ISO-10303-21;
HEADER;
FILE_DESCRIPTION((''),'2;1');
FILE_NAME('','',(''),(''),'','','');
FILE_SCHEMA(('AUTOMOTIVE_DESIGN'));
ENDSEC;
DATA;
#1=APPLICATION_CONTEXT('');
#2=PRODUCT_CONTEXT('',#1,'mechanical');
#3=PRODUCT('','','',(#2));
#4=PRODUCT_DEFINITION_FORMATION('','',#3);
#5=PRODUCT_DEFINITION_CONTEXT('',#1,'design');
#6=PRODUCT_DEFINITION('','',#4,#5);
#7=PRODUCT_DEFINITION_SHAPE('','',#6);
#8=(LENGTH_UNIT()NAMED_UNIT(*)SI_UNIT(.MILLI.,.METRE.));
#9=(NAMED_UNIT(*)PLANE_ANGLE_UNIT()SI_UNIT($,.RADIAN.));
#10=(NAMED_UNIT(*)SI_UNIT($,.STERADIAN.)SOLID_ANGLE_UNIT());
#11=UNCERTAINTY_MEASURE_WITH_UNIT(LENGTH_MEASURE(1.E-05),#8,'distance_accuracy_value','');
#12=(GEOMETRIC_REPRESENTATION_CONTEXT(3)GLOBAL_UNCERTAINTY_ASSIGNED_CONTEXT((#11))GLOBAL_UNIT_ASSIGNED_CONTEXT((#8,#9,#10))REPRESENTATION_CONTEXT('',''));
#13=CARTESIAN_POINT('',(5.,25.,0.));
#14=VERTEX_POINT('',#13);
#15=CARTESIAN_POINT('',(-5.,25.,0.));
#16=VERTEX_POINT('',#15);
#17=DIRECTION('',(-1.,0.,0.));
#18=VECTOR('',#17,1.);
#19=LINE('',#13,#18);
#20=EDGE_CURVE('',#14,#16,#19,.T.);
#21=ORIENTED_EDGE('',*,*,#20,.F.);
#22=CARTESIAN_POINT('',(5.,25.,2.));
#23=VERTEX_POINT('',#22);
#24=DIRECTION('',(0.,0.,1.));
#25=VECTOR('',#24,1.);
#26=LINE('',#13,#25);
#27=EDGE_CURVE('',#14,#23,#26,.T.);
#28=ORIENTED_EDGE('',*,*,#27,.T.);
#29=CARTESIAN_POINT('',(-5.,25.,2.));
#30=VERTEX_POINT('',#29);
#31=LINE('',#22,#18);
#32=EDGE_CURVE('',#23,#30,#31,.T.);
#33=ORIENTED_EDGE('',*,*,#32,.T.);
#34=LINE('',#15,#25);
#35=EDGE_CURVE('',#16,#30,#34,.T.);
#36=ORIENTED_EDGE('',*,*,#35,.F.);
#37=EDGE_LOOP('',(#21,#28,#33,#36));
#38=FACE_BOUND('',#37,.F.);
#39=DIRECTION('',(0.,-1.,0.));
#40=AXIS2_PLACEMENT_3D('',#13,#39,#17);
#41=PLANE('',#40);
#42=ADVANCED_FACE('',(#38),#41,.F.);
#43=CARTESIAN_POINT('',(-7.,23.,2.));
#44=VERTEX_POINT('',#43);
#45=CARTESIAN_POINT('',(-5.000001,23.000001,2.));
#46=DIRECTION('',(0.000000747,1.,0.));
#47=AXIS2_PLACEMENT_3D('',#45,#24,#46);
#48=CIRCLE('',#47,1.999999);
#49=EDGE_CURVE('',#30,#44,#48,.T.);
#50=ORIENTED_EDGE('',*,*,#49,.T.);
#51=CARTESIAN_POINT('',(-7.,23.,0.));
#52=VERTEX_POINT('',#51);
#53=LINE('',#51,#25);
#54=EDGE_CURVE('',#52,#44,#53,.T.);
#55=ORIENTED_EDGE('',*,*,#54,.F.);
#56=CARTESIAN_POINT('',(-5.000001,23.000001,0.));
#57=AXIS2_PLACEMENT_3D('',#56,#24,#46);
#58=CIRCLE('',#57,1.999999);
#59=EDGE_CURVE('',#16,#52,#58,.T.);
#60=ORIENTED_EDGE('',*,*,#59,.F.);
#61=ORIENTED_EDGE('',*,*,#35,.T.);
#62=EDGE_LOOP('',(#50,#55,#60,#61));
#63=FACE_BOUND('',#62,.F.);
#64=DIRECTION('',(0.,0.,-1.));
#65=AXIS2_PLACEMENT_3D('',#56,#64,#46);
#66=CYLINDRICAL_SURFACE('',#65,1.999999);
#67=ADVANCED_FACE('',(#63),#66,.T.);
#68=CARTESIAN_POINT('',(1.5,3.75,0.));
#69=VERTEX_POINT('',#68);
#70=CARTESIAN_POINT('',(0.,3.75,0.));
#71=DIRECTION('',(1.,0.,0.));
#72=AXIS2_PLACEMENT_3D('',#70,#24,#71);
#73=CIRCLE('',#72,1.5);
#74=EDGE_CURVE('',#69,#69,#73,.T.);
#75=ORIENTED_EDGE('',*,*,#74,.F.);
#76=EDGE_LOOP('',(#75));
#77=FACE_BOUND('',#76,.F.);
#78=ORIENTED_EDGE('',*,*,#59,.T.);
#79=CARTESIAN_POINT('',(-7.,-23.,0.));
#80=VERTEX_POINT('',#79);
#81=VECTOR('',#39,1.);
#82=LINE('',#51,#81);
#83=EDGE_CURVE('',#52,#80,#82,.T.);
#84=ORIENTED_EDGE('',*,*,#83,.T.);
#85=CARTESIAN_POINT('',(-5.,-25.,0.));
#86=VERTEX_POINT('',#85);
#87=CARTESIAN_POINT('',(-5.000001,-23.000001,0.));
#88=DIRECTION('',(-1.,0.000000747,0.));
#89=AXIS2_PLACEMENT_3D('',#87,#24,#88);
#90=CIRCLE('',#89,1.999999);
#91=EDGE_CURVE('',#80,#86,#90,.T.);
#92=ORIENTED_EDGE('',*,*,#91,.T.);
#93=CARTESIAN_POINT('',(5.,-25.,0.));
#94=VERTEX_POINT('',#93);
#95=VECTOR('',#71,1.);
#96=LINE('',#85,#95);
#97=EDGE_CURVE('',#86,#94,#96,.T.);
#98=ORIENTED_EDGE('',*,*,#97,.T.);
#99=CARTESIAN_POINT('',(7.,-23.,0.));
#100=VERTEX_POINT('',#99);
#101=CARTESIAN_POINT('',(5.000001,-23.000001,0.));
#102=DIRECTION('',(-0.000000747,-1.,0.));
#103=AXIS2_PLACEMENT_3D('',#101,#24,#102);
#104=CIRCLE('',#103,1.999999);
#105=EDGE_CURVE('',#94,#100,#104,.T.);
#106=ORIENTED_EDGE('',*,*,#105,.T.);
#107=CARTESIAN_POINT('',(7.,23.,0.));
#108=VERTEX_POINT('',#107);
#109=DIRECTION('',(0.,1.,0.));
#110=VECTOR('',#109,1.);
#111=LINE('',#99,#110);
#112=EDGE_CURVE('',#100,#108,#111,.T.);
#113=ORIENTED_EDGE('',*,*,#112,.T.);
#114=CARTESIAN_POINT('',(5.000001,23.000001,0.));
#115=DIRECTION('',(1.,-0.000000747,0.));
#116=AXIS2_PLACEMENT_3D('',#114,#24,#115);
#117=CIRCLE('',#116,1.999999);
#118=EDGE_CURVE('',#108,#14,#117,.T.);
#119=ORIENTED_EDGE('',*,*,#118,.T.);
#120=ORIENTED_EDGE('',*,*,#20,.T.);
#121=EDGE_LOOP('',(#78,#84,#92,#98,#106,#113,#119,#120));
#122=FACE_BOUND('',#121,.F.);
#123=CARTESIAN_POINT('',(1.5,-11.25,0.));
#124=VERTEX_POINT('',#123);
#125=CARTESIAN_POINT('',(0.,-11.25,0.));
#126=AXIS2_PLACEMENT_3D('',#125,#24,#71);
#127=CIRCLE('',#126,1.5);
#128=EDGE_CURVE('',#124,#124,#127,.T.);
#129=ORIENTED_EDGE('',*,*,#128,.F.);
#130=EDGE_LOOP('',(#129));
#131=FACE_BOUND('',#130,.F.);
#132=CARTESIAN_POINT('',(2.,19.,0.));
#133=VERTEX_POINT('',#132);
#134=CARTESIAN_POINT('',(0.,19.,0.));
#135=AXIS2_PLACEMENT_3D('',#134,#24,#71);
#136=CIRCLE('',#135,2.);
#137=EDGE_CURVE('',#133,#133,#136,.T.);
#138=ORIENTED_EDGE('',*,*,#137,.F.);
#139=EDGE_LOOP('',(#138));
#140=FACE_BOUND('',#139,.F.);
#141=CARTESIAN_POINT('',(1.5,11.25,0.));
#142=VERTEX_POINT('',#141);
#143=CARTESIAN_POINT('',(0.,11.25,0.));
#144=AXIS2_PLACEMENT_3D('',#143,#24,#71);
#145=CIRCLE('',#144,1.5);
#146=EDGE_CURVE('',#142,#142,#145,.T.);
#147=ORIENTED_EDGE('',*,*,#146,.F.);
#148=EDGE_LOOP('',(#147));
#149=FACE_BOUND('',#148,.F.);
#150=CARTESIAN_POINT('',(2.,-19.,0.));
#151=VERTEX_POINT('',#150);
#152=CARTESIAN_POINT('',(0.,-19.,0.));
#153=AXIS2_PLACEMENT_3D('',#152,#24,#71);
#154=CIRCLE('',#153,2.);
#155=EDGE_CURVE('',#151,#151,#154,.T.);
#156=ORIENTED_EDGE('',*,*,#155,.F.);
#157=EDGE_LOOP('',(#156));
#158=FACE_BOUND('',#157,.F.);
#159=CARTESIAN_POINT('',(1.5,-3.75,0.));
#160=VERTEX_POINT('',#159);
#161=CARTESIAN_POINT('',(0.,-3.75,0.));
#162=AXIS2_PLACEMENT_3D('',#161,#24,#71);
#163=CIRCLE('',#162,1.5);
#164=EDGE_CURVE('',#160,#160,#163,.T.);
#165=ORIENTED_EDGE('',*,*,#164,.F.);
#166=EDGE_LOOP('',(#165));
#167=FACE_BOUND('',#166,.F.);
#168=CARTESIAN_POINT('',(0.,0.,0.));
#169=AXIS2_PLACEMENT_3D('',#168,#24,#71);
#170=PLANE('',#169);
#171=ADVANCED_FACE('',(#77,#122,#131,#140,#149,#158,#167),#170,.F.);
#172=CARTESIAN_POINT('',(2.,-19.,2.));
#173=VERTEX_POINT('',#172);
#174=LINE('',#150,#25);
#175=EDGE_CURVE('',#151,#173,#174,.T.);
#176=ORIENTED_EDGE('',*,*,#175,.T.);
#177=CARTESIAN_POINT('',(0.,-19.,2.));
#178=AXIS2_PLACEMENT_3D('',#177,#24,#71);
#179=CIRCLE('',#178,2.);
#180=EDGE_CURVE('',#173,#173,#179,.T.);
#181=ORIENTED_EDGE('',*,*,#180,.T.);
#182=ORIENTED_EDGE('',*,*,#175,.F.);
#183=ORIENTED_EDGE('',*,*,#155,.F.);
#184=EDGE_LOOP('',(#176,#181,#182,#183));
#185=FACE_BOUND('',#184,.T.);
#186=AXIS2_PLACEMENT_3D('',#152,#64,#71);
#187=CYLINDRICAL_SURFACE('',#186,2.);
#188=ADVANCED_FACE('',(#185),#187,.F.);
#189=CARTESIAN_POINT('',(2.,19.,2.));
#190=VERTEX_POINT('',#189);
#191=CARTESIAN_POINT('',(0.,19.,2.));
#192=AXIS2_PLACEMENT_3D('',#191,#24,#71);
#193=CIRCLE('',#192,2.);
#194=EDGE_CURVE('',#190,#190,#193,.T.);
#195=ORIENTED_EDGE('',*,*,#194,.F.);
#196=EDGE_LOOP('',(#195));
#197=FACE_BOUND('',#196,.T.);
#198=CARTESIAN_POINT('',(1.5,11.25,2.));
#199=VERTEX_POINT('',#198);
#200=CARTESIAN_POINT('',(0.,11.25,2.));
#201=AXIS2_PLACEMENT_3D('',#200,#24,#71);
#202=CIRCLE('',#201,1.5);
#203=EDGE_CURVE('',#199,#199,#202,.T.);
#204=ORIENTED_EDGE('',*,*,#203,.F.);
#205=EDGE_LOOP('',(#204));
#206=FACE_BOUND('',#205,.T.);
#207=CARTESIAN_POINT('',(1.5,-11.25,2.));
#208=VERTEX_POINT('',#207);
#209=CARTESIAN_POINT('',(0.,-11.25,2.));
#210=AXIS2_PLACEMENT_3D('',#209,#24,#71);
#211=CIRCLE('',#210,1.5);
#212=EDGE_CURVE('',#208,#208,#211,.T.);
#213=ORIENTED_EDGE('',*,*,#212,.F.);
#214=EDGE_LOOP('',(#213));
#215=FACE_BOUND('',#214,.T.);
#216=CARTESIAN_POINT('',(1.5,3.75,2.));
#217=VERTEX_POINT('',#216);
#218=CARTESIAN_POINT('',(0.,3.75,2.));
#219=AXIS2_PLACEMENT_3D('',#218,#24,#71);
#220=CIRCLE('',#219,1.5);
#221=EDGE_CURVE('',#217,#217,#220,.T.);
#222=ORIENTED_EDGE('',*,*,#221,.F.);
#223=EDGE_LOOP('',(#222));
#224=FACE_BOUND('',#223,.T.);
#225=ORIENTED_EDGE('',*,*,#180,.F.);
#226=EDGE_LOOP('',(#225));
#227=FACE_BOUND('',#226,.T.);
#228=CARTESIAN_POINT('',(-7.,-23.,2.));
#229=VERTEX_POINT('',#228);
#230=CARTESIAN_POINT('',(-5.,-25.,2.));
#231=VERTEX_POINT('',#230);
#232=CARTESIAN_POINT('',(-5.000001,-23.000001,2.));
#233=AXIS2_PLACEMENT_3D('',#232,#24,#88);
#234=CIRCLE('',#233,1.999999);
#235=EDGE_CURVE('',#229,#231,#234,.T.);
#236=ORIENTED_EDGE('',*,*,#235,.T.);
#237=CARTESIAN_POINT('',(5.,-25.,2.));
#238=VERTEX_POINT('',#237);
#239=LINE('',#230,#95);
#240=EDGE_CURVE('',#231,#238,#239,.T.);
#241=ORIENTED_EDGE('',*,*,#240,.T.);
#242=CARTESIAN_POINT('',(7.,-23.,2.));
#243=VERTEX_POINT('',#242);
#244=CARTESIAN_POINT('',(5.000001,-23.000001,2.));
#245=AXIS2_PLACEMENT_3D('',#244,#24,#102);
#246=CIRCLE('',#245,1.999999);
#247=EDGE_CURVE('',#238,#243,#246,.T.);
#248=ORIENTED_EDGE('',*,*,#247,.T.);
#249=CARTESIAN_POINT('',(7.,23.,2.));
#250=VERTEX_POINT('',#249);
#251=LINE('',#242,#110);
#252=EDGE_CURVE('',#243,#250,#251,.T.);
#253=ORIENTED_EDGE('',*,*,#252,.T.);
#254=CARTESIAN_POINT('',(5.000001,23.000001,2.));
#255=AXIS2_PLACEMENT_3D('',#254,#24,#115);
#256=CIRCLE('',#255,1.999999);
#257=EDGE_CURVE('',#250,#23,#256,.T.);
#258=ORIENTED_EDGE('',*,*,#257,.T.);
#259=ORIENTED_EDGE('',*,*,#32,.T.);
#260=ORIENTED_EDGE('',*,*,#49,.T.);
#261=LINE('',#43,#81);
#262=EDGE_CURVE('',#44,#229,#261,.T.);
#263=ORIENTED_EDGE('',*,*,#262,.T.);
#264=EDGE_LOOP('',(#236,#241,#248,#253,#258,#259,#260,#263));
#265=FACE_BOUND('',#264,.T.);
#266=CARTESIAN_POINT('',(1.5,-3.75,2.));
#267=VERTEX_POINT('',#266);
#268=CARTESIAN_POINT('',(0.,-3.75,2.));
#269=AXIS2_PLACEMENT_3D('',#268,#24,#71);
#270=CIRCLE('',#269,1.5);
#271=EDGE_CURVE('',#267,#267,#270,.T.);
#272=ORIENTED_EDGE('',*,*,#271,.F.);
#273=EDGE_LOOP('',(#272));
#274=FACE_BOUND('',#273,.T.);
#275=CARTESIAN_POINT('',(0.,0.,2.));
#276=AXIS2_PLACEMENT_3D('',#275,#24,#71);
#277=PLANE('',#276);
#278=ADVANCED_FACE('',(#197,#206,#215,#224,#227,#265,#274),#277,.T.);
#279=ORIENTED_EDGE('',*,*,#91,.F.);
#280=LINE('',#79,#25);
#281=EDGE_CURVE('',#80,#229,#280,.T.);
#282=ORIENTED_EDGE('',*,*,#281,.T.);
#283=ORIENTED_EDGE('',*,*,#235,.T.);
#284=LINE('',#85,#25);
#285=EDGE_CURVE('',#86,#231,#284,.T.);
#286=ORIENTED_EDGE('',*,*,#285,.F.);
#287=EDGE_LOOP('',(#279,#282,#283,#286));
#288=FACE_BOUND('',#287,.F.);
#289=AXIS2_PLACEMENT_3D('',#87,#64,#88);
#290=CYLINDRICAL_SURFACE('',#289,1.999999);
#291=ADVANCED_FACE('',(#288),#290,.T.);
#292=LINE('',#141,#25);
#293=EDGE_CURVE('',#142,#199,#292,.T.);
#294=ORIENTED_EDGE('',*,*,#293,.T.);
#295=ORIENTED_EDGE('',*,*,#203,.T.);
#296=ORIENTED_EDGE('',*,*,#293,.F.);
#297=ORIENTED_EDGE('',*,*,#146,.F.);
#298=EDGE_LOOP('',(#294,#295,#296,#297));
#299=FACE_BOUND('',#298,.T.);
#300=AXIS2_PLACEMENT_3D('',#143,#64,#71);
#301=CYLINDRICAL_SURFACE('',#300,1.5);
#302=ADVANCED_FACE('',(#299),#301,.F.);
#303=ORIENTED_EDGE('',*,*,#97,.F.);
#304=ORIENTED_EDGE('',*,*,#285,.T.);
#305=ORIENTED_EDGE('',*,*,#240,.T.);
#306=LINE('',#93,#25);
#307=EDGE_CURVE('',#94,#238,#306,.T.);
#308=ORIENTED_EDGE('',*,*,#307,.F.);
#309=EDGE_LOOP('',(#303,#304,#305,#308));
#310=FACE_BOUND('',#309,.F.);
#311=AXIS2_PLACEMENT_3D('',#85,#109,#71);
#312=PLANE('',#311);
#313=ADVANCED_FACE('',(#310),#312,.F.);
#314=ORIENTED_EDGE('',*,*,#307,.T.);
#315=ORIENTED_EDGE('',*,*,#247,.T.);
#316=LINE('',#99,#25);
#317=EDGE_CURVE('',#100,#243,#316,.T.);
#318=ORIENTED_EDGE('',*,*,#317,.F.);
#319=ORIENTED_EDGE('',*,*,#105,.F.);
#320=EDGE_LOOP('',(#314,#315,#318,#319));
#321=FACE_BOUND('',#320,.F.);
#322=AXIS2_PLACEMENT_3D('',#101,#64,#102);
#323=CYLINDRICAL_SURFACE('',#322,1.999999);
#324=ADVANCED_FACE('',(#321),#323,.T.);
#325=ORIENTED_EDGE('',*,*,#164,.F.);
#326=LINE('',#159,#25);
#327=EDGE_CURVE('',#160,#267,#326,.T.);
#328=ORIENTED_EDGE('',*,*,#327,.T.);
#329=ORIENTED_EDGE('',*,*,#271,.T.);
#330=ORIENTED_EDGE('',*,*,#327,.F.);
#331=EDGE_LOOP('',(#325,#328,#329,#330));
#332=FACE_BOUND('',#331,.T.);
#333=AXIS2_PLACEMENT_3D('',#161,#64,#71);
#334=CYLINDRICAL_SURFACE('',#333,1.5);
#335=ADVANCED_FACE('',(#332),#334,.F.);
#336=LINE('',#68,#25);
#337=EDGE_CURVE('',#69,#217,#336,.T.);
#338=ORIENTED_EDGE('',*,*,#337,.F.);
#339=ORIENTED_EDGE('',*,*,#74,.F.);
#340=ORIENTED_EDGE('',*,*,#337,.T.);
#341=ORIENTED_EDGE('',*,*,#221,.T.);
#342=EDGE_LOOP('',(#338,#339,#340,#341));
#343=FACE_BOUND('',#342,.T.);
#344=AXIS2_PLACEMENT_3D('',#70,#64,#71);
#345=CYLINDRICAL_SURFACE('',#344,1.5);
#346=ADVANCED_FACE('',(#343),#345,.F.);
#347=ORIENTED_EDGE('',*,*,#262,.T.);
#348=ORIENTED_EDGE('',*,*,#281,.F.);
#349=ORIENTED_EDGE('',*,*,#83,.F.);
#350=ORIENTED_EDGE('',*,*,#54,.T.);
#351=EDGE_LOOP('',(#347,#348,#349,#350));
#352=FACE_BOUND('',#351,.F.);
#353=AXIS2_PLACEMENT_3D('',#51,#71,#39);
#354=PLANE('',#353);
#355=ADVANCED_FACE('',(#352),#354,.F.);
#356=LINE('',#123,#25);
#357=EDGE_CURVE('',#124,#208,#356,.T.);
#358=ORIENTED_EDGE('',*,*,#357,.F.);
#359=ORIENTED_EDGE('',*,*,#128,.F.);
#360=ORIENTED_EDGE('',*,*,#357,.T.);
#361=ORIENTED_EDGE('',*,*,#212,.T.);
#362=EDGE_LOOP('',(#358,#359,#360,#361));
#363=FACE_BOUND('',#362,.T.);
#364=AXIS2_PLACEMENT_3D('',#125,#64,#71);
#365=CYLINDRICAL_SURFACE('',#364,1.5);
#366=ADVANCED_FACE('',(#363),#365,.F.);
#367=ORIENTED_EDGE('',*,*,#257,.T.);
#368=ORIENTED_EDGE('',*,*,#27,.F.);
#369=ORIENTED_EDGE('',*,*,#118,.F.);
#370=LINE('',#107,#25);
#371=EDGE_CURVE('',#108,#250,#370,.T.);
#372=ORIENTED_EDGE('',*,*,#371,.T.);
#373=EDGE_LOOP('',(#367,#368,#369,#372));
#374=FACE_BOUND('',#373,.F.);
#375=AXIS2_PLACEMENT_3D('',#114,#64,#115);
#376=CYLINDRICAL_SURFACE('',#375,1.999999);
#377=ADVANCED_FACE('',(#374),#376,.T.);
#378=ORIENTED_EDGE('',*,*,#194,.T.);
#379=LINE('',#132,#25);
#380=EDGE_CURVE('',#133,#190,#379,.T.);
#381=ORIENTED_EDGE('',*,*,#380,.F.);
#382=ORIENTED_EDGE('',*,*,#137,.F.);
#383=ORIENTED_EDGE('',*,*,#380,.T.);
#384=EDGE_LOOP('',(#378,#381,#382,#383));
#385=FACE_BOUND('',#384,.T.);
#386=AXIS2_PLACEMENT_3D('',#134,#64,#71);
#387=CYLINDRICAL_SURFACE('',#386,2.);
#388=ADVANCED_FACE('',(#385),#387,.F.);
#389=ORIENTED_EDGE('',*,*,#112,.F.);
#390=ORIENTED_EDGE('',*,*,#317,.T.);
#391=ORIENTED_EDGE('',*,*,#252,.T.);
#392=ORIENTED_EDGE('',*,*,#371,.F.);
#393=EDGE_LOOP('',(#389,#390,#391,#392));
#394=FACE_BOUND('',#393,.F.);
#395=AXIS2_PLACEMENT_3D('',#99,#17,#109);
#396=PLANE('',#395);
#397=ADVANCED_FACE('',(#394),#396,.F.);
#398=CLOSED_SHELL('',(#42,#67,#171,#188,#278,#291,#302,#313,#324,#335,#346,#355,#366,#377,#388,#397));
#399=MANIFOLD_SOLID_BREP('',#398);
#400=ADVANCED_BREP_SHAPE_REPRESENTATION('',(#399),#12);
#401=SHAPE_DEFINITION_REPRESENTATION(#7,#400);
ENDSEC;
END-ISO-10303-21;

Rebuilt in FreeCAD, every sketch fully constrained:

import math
import FreeCAD as App
import Part
import Sketcher

V = App.Vector
Q = App.Units.Quantity

doc = App.newDocument("Part")
body = doc.addObject("PartDesign::Body", "Body")

# Sketch on XY plane
sketch1 = body.newObject("Sketcher::SketchObject", "Sketch")
sketch1.AttachmentSupport = (doc.getObject("XY_Plane"), [""])
sketch1.MapMode = "FlatFace"
sketch1.addGeometry([
    Part.ArcOfCircle(Part.Circle(V(5, 23, 0), V(0, 0, 1), 2), math.radians(0), math.radians(90)),  # 0
    Part.LineSegment(V(5, 25, 0), V(-5, 25, 0)),  # 1
    Part.ArcOfCircle(Part.Circle(V(-5, 23, 0), V(0, 0, 1), 2), math.radians(90), math.radians(180)),  # 2
    Part.LineSegment(V(-7, 23, 0), V(-7, -23, 0)),  # 3
    Part.ArcOfCircle(Part.Circle(V(-5, -23, 0), V(0, 0, 1), 2), math.radians(180), math.radians(270)),  # 4
    Part.LineSegment(V(-5, -25, 0), V(5, -25, 0)),  # 5
    Part.ArcOfCircle(Part.Circle(V(5, -23, 0), V(0, 0, 1), 2), math.radians(-90), math.radians(0)),  # 6
    Part.LineSegment(V(7, -23, 0), V(7, 23, 0)),  # 7
    Part.Circle(V(0, -19, 0), V(0, 0, 1), 2),  # 8
    Part.Circle(V(0, -11.2, 0), V(0, 0, 1), 1.5),  # 9
    Part.Circle(V(0, -3.8, 0), V(0, 0, 1), 1.5),  # 10
    Part.Circle(V(0, 3.8, 0), V(0, 0, 1), 1.5),  # 11
    Part.Circle(V(0, 11.2, 0), V(0, 0, 1), 1.5),  # 12
    Part.Circle(V(0, 19, 0), V(0, 0, 1), 2),  # 13
], False)
sketch1.addConstraint([
    Sketcher.Constraint("Tangent", 0, 2, 1, 1),
    Sketcher.Constraint("Tangent", 1, 2, 2, 1),
    Sketcher.Constraint("Tangent", 2, 2, 3, 1),
    Sketcher.Constraint("Tangent", 3, 2, 4, 1),
    Sketcher.Constraint("Tangent", 4, 2, 5, 1),
    Sketcher.Constraint("Tangent", 5, 2, 6, 1),
    Sketcher.Constraint("Tangent", 6, 2, 7, 1),
    Sketcher.Constraint("Tangent", 7, 2, 0, 1),
    Sketcher.Constraint("Horizontal", 1),
    Sketcher.Constraint("Vertical", 3),
    Sketcher.Constraint("Horizontal", 5),
    Sketcher.Constraint("Vertical", 7),
    Sketcher.Constraint("Equal", 0, 2),
    Sketcher.Constraint("Equal", 2, 4),
    Sketcher.Constraint("Equal", 4, 6),
    Sketcher.Constraint("Equal", 6, 8),
    Sketcher.Constraint("Equal", 9, 10),
    Sketcher.Constraint("Equal", 10, 11),
    Sketcher.Constraint("Equal", 11, 12),
    Sketcher.Constraint("Equal", 8, 13),
    Sketcher.Constraint("Symmetric", 0, 3, 4, 3, -1, 1),
    Sketcher.Constraint("Symmetric", 10, 3, 11, 3, -1, 1),
    Sketcher.Constraint("Symmetric", 9, 3, 12, 3, -1, 1),
    Sketcher.Constraint("Symmetric", 8, 3, 13, 3, -1, 1),
    Sketcher.Constraint("PointOnObject", 8, 3, -2),
    Sketcher.Constraint("PointOnObject", 9, 3, -2),
    Sketcher.Constraint("PointOnObject", 10, 3, -2),
    Sketcher.Constraint("Diameter", 8, Q("4 mm")),
    Sketcher.Constraint("Diameter", 9, Q("3 mm")),
    Sketcher.Constraint("DistanceX", 1, 2, 1, 1, Q("10 mm")),
    Sketcher.Constraint("DistanceY", 3, 2, 3, 1, Q("46 mm")),
    Sketcher.Constraint("DistanceY", 8, 3, -1, 1, Q("19 mm")),
    Sketcher.Constraint("DistanceY", 9, 3, 11, 3, Q("15 mm")),
    Sketcher.Constraint("DistanceY", 9, 3, 10, 3, Q("7.5 mm")),
])
pad1 = body.newObject("PartDesign::Pad", "Pad")
pad1.Profile = sketch1
pad1.Length = 2

doc.recompute()
